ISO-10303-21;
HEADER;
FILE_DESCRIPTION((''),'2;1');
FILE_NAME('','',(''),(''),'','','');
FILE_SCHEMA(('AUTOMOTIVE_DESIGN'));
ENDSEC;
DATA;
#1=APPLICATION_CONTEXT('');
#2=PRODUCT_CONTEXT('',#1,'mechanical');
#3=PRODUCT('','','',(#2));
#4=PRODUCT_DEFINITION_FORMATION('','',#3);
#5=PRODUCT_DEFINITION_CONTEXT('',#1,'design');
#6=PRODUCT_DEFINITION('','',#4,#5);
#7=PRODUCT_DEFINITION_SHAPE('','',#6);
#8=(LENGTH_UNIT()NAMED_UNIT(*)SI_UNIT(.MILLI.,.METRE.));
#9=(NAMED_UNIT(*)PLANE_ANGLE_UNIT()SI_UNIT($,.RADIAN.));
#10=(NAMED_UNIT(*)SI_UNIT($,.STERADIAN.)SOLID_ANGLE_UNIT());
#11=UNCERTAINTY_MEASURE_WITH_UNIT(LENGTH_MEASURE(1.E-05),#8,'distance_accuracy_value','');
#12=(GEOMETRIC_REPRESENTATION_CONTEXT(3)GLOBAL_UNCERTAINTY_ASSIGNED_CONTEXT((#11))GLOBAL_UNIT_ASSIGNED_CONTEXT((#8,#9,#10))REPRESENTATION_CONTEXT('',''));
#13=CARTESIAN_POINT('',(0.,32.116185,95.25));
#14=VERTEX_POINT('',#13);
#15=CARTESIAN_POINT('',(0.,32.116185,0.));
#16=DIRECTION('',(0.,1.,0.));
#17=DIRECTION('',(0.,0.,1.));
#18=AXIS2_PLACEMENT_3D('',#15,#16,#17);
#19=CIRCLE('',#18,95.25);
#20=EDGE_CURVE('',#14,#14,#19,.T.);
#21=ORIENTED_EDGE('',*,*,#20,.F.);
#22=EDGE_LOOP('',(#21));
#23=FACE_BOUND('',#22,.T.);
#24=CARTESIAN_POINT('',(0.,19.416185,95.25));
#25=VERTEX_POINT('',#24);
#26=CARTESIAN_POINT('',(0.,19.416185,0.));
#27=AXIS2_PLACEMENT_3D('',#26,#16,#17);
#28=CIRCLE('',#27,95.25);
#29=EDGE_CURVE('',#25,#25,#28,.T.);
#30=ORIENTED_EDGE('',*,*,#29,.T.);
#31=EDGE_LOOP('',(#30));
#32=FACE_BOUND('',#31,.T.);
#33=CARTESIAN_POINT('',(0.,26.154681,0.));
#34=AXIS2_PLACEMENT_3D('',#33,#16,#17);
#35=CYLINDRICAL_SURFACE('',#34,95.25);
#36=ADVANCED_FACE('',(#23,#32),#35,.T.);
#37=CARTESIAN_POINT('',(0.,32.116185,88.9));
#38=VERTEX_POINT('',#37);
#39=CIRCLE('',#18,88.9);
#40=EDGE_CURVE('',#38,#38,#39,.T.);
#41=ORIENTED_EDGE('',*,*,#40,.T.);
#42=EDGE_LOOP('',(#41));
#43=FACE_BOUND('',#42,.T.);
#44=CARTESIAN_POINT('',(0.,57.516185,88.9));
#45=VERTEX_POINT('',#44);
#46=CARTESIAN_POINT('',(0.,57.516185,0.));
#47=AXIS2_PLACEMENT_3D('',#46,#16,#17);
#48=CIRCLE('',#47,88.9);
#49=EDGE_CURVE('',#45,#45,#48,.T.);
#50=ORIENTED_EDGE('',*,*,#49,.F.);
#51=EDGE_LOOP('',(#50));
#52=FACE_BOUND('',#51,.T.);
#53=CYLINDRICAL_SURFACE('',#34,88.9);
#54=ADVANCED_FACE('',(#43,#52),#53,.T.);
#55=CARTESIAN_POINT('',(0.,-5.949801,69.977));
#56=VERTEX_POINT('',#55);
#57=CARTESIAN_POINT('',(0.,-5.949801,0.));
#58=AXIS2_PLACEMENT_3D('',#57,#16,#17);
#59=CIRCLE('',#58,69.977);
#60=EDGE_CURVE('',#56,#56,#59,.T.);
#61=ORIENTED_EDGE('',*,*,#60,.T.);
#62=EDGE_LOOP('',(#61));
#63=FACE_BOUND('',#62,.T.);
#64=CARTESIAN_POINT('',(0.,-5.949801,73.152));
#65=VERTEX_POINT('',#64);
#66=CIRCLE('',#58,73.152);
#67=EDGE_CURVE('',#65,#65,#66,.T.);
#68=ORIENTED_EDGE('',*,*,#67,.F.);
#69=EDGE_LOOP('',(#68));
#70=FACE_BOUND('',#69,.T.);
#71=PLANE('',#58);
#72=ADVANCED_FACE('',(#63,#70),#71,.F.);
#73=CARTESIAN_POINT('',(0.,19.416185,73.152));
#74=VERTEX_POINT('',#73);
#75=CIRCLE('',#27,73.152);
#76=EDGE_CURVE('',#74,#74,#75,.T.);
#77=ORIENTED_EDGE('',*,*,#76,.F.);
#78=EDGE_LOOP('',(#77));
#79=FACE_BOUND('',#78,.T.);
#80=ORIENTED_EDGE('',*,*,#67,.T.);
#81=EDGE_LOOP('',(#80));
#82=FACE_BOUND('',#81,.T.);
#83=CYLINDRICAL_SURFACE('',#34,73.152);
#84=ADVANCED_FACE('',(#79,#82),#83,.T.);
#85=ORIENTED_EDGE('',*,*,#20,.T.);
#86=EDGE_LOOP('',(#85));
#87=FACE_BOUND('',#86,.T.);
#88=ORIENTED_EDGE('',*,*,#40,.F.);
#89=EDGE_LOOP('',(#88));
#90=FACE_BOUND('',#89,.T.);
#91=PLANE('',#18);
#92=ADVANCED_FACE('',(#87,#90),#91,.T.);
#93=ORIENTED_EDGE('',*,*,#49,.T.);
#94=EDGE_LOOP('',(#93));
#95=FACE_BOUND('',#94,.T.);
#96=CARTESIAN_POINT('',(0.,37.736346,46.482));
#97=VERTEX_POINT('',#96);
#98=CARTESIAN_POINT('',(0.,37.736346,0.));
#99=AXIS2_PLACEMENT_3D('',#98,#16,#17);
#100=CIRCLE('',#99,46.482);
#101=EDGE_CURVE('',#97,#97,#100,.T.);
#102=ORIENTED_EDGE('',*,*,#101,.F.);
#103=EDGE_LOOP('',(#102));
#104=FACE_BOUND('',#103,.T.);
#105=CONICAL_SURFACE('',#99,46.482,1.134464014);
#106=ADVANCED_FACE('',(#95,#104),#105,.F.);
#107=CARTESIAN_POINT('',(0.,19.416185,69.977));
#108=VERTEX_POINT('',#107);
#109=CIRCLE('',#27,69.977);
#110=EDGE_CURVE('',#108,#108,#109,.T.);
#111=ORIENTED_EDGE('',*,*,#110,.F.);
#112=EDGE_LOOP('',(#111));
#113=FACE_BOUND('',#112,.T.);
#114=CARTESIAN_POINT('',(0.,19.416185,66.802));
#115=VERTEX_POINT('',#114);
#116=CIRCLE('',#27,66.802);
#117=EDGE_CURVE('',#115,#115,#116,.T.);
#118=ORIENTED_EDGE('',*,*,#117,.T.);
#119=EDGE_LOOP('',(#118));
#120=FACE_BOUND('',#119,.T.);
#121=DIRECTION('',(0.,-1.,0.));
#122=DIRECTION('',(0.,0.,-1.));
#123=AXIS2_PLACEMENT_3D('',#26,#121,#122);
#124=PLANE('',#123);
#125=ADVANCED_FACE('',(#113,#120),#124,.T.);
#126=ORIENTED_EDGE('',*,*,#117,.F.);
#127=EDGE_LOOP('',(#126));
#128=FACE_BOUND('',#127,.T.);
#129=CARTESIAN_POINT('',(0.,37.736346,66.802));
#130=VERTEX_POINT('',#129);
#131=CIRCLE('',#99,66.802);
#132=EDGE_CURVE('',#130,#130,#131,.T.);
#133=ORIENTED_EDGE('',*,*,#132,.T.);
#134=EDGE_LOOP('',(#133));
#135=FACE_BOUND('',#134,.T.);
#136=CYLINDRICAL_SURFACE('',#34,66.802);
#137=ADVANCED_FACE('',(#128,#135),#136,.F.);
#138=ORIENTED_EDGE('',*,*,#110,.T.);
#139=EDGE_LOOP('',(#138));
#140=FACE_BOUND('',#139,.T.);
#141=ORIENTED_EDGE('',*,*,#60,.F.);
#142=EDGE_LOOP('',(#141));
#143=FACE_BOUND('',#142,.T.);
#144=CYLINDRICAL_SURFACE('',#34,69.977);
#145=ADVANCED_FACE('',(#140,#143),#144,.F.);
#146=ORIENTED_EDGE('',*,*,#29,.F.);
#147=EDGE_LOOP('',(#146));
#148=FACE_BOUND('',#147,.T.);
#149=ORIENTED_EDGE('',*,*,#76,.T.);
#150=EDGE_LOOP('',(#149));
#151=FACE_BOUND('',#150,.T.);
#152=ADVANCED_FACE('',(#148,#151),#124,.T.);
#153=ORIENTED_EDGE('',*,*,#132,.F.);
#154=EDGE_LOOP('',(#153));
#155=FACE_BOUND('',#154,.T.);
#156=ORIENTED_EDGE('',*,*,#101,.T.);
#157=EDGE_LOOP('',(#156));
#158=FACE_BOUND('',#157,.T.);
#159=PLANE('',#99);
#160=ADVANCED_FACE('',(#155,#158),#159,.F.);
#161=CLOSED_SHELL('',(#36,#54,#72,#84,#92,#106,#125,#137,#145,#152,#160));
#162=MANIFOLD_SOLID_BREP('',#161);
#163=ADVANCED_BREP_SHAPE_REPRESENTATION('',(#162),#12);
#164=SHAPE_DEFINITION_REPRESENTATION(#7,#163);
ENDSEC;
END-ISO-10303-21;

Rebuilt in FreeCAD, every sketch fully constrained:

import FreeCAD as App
import Part
import Sketcher
from FreeCAD import Vector
Q = App.Units.Quantity

doc = App.newDocument("Part")
body = doc.addObject("PartDesign::Body", "Body")

# Sketch on XY plane
sketch1 = body.newObject("Sketcher::SketchObject", "Sketch")
sketch1.AttachmentSupport = (doc.getObject("XY_Plane"), [""])
sketch1.MapMode = "FlatFace"
sketch1.addGeometry([
    Part.LineSegment(Vector(-66.8, 37.7, 0), Vector(-46.5, 37.7, 0)),  # 0
    Part.LineSegment(Vector(-46.5, 37.7, 0), Vector(-88.9, 57.5, 0)),  # 1
    Part.LineSegment(Vector(-88.9, 57.5, 0), Vector(-88.9, 32.1, 0)),  # 2
    Part.LineSegment(Vector(-88.9, 32.1, 0), Vector(-95.2, 32.1, 0)),  # 3
    Part.LineSegment(Vector(-95.2, 32.1, 0), Vector(-95.2, 19.4, 0)),  # 4
    Part.LineSegment(Vector(-95.2, 19.4, 0), Vector(-73.2, 19.4, 0)),  # 5
    Part.LineSegment(Vector(-73.2, 19.4, 0), Vector(-73.2, -5.9, 0)),  # 6
    Part.LineSegment(Vector(-73.2, -5.9, 0), Vector(-70, -5.9, 0)),  # 7
    Part.LineSegment(Vector(-70, -5.9, 0), Vector(-70, 19.4, 0)),  # 8
    Part.LineSegment(Vector(-70, 19.4, 0), Vector(-66.8, 19.4, 0)),  # 9
    Part.LineSegment(Vector(-66.8, 19.4, 0), Vector(-66.8, 37.7, 0)),  # 10
], False)
sketch1.addConstraint([
    Sketcher.Constraint("Coincident", 0, 2, 1, 1),
    Sketcher.Constraint("Coincident", 1, 2, 2, 1),
    Sketcher.Constraint("Coincident", 2, 2, 3, 1),
    Sketcher.Constraint("Coincident", 3, 2, 4, 1),
    Sketcher.Constraint("Coincident", 4, 2, 5, 1),
    Sketcher.Constraint("Coincident", 5, 2, 6, 1),
    Sketcher.Constraint("Coincident", 6, 2, 7, 1),
    Sketcher.Constraint("Coincident", 7, 2, 8, 1),
    Sketcher.Constraint("Coincident", 8, 2, 9, 1),
    Sketcher.Constraint("Coincident", 9, 2, 10, 1),
    Sketcher.Constraint("Coincident", 10, 2, 0, 1),
    Sketcher.Constraint("Horizontal", 0),
    Sketcher.Constraint("Vertical", 2),
    Sketcher.Constraint("Horizontal", 3),
    Sketcher.Constraint("Vertical", 4),
    Sketcher.Constraint("Horizontal", 5),
    Sketcher.Constraint("Vertical", 6),
    Sketcher.Constraint("Horizontal", 7),
    Sketcher.Constraint("Vertical", 8),
    Sketcher.Constraint("Horizontal", 9),
    Sketcher.Constraint("Vertical", 10),
    Sketcher.Constraint("Horizontal", 5, 2, 8, 2),
    Sketcher.Constraint("Equal", 7, 9),
    Sketcher.Constraint("DistanceY", 2, 2, 2, 1, Q("1 in")),
    Sketcher.Constraint("DistanceX", 0, 1, 0, 2, Q("0.8 in")),
    Sketcher.Constraint("DistanceY", 4, 2, 4, 1, Q("0.5 in")),
    Sketcher.Constraint("Angle", 1, Q("155 deg")),
    Sketcher.Constraint("DistanceX", 3, 2, 3, 1, Q("0.25 in")),
    Sketcher.Constraint("DistanceX", 5, 1, 5, 2, Q("0.87 in")),
    Sketcher.Constraint("DistanceX", 1, 2, -1, 1, Q("3.5 in")),
    Sketcher.Constraint("DistanceX", 7, 1, 7, 2, Q("0.125 in")),
    Sketcher.Constraint("DistanceY", 6, 2, -1, 1, Q("5.949801 mm")),
    Sketcher.Constraint("DistanceY", 6, 2, 6, 1, Q("25.365985 mm")),
])
revolution = body.newObject("PartDesign::Revolution", "Revolution")
revolution.Profile = sketch1
revolution.ReferenceAxis = (sketch1, ["V_Axis"])
revolution.Angle = 360

doc.recompute()
